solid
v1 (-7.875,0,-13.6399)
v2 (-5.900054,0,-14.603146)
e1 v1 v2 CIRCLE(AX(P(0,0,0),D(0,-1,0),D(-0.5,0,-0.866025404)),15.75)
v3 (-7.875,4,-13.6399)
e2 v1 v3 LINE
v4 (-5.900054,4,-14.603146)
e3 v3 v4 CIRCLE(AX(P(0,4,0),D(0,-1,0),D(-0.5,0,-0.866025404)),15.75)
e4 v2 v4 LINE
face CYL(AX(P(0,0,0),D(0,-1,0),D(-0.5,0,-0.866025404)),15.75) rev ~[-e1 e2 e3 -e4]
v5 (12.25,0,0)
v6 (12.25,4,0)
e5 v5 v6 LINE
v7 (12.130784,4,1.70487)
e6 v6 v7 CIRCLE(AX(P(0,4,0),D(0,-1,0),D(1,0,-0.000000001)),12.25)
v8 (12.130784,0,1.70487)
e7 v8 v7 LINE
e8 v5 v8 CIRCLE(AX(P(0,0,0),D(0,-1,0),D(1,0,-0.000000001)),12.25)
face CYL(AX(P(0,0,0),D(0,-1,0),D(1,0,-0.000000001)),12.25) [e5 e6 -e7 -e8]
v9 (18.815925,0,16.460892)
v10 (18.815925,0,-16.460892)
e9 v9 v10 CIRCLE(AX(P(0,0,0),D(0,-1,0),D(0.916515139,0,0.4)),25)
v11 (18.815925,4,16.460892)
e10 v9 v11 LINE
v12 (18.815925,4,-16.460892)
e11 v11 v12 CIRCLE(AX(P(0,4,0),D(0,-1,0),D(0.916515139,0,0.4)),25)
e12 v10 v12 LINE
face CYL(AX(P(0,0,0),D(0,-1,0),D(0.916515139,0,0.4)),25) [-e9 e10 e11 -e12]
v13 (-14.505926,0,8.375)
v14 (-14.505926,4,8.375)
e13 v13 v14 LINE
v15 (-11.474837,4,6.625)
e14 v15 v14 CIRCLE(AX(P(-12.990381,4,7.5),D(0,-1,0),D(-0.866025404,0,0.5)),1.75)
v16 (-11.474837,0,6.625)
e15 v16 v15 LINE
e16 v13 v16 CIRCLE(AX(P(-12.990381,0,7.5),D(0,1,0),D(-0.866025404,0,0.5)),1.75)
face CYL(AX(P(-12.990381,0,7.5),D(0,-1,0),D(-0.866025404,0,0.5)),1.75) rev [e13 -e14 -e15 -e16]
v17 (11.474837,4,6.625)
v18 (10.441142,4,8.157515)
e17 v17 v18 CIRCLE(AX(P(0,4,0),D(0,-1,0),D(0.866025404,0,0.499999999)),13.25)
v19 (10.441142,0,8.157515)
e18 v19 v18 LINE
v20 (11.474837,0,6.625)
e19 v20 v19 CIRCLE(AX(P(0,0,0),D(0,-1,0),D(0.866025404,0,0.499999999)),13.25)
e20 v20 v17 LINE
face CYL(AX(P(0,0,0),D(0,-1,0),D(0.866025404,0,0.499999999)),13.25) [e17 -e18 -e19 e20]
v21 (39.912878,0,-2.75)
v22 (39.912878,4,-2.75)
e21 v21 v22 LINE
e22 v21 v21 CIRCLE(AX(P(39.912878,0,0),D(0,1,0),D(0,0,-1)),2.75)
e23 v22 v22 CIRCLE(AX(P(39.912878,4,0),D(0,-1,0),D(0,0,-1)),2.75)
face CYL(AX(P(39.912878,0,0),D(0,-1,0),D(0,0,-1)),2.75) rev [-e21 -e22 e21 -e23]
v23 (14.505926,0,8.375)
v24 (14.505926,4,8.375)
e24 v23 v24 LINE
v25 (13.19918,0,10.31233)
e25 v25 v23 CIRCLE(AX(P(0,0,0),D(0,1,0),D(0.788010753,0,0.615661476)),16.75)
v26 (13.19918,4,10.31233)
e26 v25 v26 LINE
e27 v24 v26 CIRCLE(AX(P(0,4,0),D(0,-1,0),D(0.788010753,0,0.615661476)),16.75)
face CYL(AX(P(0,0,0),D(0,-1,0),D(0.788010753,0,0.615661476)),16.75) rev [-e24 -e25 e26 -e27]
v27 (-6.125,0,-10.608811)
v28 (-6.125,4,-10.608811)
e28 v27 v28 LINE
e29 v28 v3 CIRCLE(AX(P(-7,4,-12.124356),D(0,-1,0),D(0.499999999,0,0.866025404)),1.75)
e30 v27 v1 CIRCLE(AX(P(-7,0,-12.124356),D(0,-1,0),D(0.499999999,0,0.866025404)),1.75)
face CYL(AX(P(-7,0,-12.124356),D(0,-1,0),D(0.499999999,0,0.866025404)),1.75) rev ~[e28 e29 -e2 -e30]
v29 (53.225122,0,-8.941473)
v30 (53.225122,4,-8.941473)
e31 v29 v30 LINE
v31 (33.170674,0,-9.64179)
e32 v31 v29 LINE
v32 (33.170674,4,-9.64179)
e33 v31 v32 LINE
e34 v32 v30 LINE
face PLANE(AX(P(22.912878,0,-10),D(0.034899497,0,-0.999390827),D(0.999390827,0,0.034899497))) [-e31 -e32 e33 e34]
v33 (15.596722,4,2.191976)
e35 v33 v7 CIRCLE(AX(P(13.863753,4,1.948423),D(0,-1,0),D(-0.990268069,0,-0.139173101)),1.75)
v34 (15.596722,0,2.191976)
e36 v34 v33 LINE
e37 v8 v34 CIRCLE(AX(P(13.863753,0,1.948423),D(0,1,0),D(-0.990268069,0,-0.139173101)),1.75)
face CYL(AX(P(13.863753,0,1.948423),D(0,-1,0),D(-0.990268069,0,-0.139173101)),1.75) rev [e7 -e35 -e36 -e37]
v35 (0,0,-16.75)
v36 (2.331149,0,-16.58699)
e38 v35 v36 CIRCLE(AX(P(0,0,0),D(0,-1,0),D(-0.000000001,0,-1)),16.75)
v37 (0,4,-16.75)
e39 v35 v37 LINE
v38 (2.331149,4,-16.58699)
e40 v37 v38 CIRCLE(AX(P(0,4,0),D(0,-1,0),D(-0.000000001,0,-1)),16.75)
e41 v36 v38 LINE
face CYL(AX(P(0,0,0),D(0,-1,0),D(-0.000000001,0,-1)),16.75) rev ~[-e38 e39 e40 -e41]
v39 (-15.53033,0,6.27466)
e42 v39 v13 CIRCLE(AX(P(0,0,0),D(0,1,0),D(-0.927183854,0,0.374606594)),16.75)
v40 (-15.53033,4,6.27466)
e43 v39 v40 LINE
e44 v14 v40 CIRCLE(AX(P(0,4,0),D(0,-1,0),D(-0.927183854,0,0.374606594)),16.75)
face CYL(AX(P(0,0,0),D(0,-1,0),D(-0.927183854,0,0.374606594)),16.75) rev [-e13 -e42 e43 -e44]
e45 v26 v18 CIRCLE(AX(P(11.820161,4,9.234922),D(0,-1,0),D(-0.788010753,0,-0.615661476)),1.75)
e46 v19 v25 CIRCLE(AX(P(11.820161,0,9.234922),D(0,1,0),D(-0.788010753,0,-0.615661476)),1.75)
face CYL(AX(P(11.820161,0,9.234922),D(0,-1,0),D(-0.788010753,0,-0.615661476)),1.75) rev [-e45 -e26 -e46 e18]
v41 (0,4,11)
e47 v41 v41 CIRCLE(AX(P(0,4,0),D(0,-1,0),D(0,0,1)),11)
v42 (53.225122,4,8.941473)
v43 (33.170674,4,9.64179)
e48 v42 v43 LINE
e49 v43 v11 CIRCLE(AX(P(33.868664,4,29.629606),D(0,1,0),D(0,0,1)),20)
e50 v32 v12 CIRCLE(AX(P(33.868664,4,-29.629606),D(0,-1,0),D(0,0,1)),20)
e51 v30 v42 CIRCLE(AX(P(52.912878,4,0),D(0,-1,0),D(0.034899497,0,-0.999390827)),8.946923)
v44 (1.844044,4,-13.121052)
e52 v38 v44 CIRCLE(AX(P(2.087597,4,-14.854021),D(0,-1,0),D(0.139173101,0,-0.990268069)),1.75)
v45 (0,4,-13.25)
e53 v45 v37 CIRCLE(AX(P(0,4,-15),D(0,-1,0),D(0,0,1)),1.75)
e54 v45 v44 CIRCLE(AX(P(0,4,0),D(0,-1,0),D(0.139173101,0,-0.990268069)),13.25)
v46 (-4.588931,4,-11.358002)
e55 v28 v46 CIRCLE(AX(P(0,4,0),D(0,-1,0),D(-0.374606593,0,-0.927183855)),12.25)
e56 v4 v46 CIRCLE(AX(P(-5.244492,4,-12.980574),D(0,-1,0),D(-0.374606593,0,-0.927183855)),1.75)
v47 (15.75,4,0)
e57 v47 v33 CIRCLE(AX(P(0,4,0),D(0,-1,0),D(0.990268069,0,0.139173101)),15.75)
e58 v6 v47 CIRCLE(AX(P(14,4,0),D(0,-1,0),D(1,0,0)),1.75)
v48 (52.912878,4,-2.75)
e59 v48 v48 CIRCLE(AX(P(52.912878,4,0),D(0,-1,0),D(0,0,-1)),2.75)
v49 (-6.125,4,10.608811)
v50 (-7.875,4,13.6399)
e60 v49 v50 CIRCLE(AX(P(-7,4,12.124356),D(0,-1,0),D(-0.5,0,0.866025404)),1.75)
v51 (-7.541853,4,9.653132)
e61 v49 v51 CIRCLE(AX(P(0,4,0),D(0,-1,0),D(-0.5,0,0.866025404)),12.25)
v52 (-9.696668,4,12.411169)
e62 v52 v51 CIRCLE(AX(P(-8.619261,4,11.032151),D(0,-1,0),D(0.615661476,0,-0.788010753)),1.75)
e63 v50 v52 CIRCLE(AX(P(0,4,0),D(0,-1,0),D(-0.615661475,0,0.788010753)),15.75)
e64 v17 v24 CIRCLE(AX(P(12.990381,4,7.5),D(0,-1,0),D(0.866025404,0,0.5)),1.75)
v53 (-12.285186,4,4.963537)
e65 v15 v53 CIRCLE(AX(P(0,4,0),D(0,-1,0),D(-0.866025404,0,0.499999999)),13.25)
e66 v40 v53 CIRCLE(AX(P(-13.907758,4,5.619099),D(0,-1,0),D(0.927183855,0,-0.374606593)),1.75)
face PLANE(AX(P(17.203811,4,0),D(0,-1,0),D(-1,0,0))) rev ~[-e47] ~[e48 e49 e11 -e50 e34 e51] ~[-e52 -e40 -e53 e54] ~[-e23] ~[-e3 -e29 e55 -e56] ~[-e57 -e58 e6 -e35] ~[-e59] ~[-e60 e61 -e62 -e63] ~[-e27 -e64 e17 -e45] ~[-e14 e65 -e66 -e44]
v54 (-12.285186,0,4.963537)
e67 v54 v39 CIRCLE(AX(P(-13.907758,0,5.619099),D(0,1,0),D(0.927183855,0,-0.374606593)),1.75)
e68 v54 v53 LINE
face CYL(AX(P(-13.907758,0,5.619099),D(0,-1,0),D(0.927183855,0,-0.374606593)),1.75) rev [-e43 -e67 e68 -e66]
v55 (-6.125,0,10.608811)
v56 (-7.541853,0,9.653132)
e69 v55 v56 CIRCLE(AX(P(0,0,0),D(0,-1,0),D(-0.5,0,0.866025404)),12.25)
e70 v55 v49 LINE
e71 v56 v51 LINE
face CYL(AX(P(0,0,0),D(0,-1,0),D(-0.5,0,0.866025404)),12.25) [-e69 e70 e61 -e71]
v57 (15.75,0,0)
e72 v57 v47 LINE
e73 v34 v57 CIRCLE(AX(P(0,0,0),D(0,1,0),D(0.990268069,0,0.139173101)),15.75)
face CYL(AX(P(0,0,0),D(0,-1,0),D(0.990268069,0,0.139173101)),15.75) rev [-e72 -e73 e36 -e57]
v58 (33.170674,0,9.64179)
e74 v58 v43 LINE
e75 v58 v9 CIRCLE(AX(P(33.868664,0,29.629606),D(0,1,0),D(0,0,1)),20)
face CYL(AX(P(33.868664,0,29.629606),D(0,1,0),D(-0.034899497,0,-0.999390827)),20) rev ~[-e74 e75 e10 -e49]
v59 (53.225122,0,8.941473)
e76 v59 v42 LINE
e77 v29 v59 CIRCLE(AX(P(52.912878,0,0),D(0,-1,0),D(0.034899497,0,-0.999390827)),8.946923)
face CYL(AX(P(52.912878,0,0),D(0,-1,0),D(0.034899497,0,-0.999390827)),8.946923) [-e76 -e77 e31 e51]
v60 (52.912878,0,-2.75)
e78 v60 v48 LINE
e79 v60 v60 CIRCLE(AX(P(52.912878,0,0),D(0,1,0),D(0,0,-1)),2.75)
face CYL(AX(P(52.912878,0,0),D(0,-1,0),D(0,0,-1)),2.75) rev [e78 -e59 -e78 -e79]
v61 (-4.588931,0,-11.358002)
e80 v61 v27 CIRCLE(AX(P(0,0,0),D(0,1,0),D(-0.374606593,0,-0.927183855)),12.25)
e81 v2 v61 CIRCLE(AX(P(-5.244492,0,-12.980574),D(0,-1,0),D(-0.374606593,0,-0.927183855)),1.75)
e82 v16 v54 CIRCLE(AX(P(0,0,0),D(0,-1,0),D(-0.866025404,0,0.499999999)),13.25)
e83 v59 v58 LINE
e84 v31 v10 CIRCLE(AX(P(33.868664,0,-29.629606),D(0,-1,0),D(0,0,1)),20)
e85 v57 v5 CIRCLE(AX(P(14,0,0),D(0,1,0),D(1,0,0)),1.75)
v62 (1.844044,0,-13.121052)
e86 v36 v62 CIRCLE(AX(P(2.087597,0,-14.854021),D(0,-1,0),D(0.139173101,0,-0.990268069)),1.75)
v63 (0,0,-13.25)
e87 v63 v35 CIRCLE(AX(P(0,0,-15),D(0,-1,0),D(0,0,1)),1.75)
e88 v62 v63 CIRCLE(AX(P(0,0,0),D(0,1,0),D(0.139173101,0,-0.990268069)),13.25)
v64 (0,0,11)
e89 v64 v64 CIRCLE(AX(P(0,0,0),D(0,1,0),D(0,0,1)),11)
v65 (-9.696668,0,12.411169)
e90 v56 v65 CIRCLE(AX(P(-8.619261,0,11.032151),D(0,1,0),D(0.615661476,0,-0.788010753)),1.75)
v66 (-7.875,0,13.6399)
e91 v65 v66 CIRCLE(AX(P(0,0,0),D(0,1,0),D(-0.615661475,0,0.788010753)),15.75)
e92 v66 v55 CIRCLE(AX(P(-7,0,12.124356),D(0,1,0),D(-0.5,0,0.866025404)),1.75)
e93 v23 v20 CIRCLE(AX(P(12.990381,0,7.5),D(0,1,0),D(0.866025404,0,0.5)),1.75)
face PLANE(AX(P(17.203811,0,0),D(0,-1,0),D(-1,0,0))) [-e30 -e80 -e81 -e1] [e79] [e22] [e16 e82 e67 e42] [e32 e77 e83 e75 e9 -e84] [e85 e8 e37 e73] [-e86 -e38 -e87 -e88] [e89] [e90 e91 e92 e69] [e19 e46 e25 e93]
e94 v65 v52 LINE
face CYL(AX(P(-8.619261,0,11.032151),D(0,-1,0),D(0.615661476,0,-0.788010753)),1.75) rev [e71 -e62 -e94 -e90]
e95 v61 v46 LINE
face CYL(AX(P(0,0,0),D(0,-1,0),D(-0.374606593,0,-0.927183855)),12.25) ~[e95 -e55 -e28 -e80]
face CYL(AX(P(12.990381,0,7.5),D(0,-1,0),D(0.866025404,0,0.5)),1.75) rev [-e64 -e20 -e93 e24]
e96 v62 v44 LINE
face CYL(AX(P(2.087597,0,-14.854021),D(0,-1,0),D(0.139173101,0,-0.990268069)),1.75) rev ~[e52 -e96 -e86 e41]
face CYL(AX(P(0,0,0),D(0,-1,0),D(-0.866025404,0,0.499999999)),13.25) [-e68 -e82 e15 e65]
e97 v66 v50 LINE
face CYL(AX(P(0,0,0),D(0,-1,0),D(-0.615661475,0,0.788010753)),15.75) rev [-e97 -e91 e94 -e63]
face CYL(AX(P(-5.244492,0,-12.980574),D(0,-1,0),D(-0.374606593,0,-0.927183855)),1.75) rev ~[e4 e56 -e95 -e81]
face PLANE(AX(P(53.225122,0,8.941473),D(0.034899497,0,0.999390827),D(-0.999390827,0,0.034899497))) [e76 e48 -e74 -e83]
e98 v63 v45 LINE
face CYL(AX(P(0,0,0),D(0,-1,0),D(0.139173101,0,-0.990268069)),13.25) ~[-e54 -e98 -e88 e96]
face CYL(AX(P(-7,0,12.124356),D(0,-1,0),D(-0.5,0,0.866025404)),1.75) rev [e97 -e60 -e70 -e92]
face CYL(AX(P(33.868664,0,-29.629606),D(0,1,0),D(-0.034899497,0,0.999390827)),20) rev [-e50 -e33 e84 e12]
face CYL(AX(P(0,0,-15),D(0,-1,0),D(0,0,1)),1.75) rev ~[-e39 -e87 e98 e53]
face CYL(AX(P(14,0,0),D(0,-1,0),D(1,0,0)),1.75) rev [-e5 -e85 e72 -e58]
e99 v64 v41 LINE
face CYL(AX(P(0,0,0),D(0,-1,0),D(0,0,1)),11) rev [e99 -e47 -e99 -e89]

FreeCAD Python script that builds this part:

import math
import FreeCAD as App
import Part
import Sketcher

V = App.Vector
Q = App.Units.Quantity


def edges_at(feature, points):
    """Names of the edges that pass closest to the given points."""
    edges = feature.Shape.Edges
    near = lambda p: min(range(len(edges)), key=lambda i: edges[i].distToShape(Part.Vertex(*p))[0])
    return sorted({f"Edge{near(p) + 1}" for p in points})

doc = App.newDocument("Part")
body = doc.addObject("PartDesign::Body", "Body")

sketch1 = body.newObject("Sketcher::SketchObject", "Sketch")
sketch1.AttachmentSupport = (doc.getObject("XZ_Plane"), [""])
sketch1.MapMode = "FlatFace"
sketch1.addGeometry([
    Part.LineSegment(V(53, -9, 0), V(23, -10, 0)),
    Part.ArcOfCircle(Part.Circle(V(0, 0, 0), V(0, 0, 1), 25), math.radians(24), math.radians(336)),
    Part.LineSegment(V(23, 10, 0), V(53, 9, 0)),
    Part.ArcOfCircle(Part.Circle(V(53, 0, 0), V(0, 0, 1), 9), math.radians(-88), math.radians(88)),
], False)
sketch1.addConstraint([
    Sketcher.Constraint("Coincident", 0, 2, 1, 2),
    Sketcher.Constraint("Coincident", 1, 1, 2, 1),
    Sketcher.Constraint("Tangent", 2, 2, 3, 2),
    Sketcher.Constraint("Tangent", 3, 1, 0, 1),
    Sketcher.Constraint("Coincident", 1, 3, -1, 1),
    Sketcher.Constraint("Symmetric", 2, 2, 3, 1, -1),
    Sketcher.Constraint("Radius", 1, Q("25 mm")),
    Sketcher.Constraint("Angle", 0, Q("-178 deg")),
    Sketcher.Constraint("DistanceY", 0, 2, -1, 1, Q("10 mm")),
    Sketcher.Constraint("DistanceX", 0, 2, 3, 3, Q("30 mm")),
])
pad1 = body.newObject("PartDesign::Pad", "Pad")
pad1.Profile = sketch1
pad1.Length = 4
pad1.Reversed = True
doc.recompute()

fillet = body.newObject("PartDesign::Fillet", "Fillet")
fillet.Base = (pad1, edges_at(pad1, [(22.913, 2, -10), (22.913, 2, 10)]))
fillet.Radius = 20

sketch2 = body.newObject("Sketcher::SketchObject", "Sketch001")
sketch2.AttachmentSupport = (doc.getObject("XZ_Plane"), [""])
sketch2.MapMode = "FlatFace"
sketch2.addGeometry([
    Part.Circle(V(0, 0, 0), V(0, 0, 1), 11),
    Part.Circle(V(39.9, 0, 0), V(0, 0, 1), 2.8),
    Part.Circle(V(52.9, 0, 0), V(0, 0, 1), 2.8),
    Part.ArcOfCircle(Part.Circle(V(0, 0, 0), V(0, 0, 1), 15.8), math.radians(-120), math.radians(-112)),
    Part.ArcOfCircle(Part.Circle(V(-7, -12.1, 0), V(0, 0, 1), 1.8), math.radians(60), math.radians(240)),
    Part.ArcOfCircle(Part.Circle(V(0, 0, 0), V(0, 0, 1), 12.2), math.radians(-120), math.radians(-112)),
    Part.ArcOfCircle(Part.Circle(V(-5.2, -13, 0), V(0, 0, 1), 1.8), math.radians(-112), math.radians(68)),
    Part.ArcOfCircle(Part.Circle(V(0, 0, 0), V(0, 0, 1), 13.3), math.radians(-90), math.radians(-82)),
    Part.ArcOfCircle(Part.Circle(V(2.1, -14.9, 0), V(0, 0, 1), 1.8), math.radians(-82), math.radians(98)),
    Part.ArcOfCircle(Part.Circle(V(0, 0, 0), V(0, 0, 1), 16.7), math.radians(-90), math.radians(-82)),
    Part.ArcOfCircle(Part.Circle(V(0, -15, 0), V(0, 0, 1), 1.8), math.radians(90), math.radians(270)),
    Part.ArcOfCircle(Part.Circle(V(14, 0, 0), V(0, 0, 1), 1.8), math.radians(180), math.radians(360)),
    Part.ArcOfCircle(Part.Circle(V(0, 0, 0), V(0, 0, 1), 12.2), math.radians(0), math.radians(8)),
    Part.ArcOfCircle(Part.Circle(V(13.9, 1.9, 0), V(0, 0, 1), 1.8), math.radians(8), math.radians(188)),
    Part.ArcOfCircle(Part.Circle(V(0, 0, 0), V(0, 0, 1), 15.7), math.radians(0), math.radians(8)),
    Part.ArcOfCircle(Part.Circle(V(11.8, 9.2, 0), V(0, 0, 1), 1.8), math.radians(38), math.radians(218)),
    Part.ArcOfCircle(Part.Circle(V(0, 0, 0), V(0, 0, 1), 16.7), math.radians(30), math.radians(38)),
    Part.ArcOfCircle(Part.Circle(V(13, 7.5, 0), V(0, 0, 1), 1.8), math.radians(-150), math.radians(30)),
    Part.ArcOfCircle(Part.Circle(V(0, 0, 0), V(0, 0, 1), 13.2), math.radians(30), math.radians(38)),
    Part.ArcOfCircle(Part.Circle(V(-7, 12.1, 0), V(0, 0, 1), 1.8), math.radians(-60), math.radians(120)),
    Part.ArcOfCircle(Part.Circle(V(0, 0, 0), V(0, 0, 1), 12.2), math.radians(120), math.radians(128)),
    Part.ArcOfCircle(Part.Circle(V(-8.6, 11, 0), V(0, 0, 1), 1.8), math.radians(128), math.radians(308)),
    Part.ArcOfCircle(Part.Circle(V(0, 0, 0), V(0, 0, 1), 15.8), math.radians(120), math.radians(128)),
    Part.ArcOfCircle(Part.Circle(V(-13.9, 5.6, 0), V(0, 0, 1), 1.8), math.radians(158), math.radians(338)),
    Part.ArcOfCircle(Part.Circle(V(0, 0, 0), V(0, 0, 1), 16.8), math.radians(150), math.radians(158)),
    Part.ArcOfCircle(Part.Circle(V(-13, 7.5, 0), V(0, 0, 1), 1.8), math.radians(-30), math.radians(150)),
    Part.ArcOfCircle(Part.Circle(V(0, 0, 0), V(0, 0, 1), 13.3), math.radians(150), math.radians(158)),
], False)
sketch2.addConstraint([
    Sketcher.Constraint("Tangent", 3, 1, 4, 2),
    Sketcher.Constraint("Tangent", 4, 1, 5, 1),
    Sketcher.Constraint("Tangent", 5, 2, 6, 2),
    Sketcher.Constraint("Tangent", 6, 1, 3, 2),
    Sketcher.Constraint("Tangent", 7, 2, 8, 2),
    Sketcher.Constraint("Tangent", 8, 1, 9, 2),
    Sketcher.Constraint("Tangent", 9, 1, 10, 2),
    Sketcher.Constraint("Tangent", 10, 1, 7, 1),
    Sketcher.Constraint("Tangent", 11, 1, 12, 1),
    Sketcher.Constraint("Tangent", 12, 2, 13, 2),
    Sketcher.Constraint("Tangent", 13, 1, 14, 2),
    Sketcher.Constraint("Tangent", 14, 1, 11, 2),
    Sketcher.Constraint("Tangent", 15, 1, 16, 2),
    Sketcher.Constraint("Tangent", 16, 1, 17, 2),
    Sketcher.Constraint("Tangent", 17, 1, 18, 1),
    Sketcher.Constraint("Tangent", 18, 2, 15, 2),
    Sketcher.Constraint("Tangent", 19, 1, 20, 1),
    Sketcher.Constraint("Tangent", 20, 2, 21, 2),
    Sketcher.Constraint("Tangent", 21, 1, 22, 2),
    Sketcher.Constraint("Tangent", 22, 1, 19, 2),
    Sketcher.Constraint("Tangent", 23, 1, 24, 2),
    Sketcher.Constraint("Tangent", 24, 1, 25, 2),
    Sketcher.Constraint("Tangent", 25, 1, 26, 1),
    Sketcher.Constraint("Tangent", 26, 2, 23, 2),
    Sketcher.Constraint("Coincident", 0, 3, -1, 1),
    Sketcher.Constraint("Coincident", 3, 3, -1, 1),
    Sketcher.Constraint("Coincident", 5, 3, -1, 1),
    Sketcher.Constraint("Coincident", 7, 3, -1, 1),
    Sketcher.Constraint("Coincident", 9, 3, -1, 1),
    Sketcher.Constraint("Coincident", 12, 3, -1, 1),
    Sketcher.Constraint("Coincident", 14, 3, -1, 1),
    Sketcher.Constraint("Coincident", 16, 3, -1, 1),
    Sketcher.Constraint("Coincident", 18, 3, -1, 1),
    Sketcher.Constraint("Coincident", 20, 3, -1, 1),
    Sketcher.Constraint("Coincident", 22, 3, -1, 1),
    Sketcher.Constraint("Coincident", 24, 3, -1, 1),
    Sketcher.Constraint("Coincident", 26, 3, -1, 1),
    Sketcher.Constraint("Equal", 1, 2),
    Sketcher.Constraint("Equal", 6, 8),
    Sketcher.Constraint("Equal", 10, 11),
    Sketcher.Constraint("Equal", 5, 12),
    Sketcher.Constraint("Equal", 13, 15),
    Sketcher.Constraint("Equal", 9, 16),
    Sketcher.Constraint("Equal", 17, 19),
    Sketcher.Constraint("Equal", 12, 20),
    Sketcher.Constraint("Equal", 21, 23),
    Sketcher.Constraint("Equal", 16, 24),
    Sketcher.Constraint("PointOnObject", 1, 3, -1),
    Sketcher.Constraint("PointOnObject", 2, 3, -1),
    Sketcher.Constraint("PointOnObject", 10, 3, -2),
    Sketcher.Constraint("PointOnObject", 11, 3, -1),
    Sketcher.Constraint("Horizontal", 17, 3, 25, 3),
    Sketcher.Constraint("Vertical", 4, 3, 19, 3),
    Sketcher.Constraint("Diameter", 0, Q("22 mm")),
    Sketcher.Constraint("Diameter", 1, Q("5.5 mm")),
    Sketcher.Constraint("Radius", 3, Q("15.75 mm")),
    Sketcher.Constraint("Radius", 4, Q("1.75 mm")),
    Sketcher.Constraint("Radius", 7, Q("13.25 mm")),
    Sketcher.Constraint("DistanceX", 4, 3, -1, 1, Q("7 mm")),
    Sketcher.Constraint("DistanceX", 1, 3, 2, 3, Q("13 mm")),
    Sketcher.Constraint("DistanceY", -1, 1, 17, 3, Q("7.5 mm")),
    Sketcher.Constraint("DistanceY", -1, 1, 23, 3, Q("5.619099 mm")),
    Sketcher.Constraint("DistanceY", 13, 3, 15, 3, Q("7.286499 mm")),
    Sketcher.Constraint("DistanceX", 17, 3, 15, 1, Q("0.208799 mm")),
    Sketcher.Constraint("DistanceX", -1, 1, 1, 3, Q("39.912878 mm")),
    Sketcher.Constraint("DistanceY", 8, 3, -1, 1, Q("14.854021 mm")),
    Sketcher.Constraint("DistanceX", 21, 3, -1, 1, Q("8.619261 mm")),
    Sketcher.Constraint("DistanceX", 5, 2, -1, 1, Q("4.588931 mm")),
])
pocket1 = body.newObject("PartDesign::Pocket", "Pocket")
pocket1.Profile = sketch2
pocket1.Type = "ThroughAll"

doc.recompute()
